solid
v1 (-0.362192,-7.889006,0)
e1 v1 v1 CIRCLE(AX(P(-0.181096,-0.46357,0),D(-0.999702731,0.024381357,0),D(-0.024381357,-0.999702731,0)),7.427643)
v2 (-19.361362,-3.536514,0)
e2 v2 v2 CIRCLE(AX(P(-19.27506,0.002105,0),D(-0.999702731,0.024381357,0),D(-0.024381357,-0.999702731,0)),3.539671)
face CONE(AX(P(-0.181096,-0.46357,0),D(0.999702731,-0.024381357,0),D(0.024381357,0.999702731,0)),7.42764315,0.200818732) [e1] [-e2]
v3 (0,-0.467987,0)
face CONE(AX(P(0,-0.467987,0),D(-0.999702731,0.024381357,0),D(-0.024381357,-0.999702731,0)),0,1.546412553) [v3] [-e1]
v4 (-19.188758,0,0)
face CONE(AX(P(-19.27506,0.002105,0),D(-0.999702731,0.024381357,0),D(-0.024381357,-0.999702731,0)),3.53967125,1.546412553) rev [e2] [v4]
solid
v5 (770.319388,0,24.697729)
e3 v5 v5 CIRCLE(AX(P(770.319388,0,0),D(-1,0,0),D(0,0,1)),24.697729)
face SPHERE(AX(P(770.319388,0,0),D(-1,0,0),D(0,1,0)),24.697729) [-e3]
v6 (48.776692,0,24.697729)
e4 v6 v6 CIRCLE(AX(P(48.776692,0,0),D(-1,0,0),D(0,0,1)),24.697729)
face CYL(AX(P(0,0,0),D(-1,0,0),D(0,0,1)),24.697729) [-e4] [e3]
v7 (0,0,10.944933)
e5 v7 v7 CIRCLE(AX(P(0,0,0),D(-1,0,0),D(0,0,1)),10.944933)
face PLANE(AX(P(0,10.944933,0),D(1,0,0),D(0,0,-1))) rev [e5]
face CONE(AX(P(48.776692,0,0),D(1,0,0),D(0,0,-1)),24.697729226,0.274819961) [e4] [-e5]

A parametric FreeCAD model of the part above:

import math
import FreeCAD as App
import Part
import Sketcher

V = App.Vector
Q = App.Units.Quantity


def add_polygon(sketch, points):
    """Adds a closed chain of lines whose ends are joined by coincident constraints."""
    first, n = sketch.GeometryCount, len(points)
    for a, b in zip(points, points[1:] + points[:1]):
        sketch.addGeometry(Part.LineSegment(App.Vector(*a, 0), App.Vector(*b, 0)), False)
    for i in range(n):
        sketch.addConstraint(Sketcher.Constraint("Coincident", first + i, 2, first + (i + 1) % n, 1))

doc = App.newDocument("Part")
body = doc.addObject("PartDesign::Body", "Body")

sketch1 = body.newObject("Sketcher::SketchObject", "Sketch")
sketch1.AttachmentSupport = (doc.getObject("XY_Plane"), [""])
sketch1.MapMode = "FlatFace"
add_polygon(sketch1, [(0, 0), (112, 0), (112, 25), (49, 25), (0, 11)])
sketch1.addConstraint([
    Sketcher.Constraint("Horizontal", 0),
    Sketcher.Constraint("Vertical", 1),
    Sketcher.Constraint("Horizontal", 2),
    Sketcher.Constraint("Vertical", 4),
    Sketcher.Constraint("Coincident", 4, 2, -1, 1),
    Sketcher.Constraint("DistanceX", 0, 1, 0, 2, Q("111.81034 mm")),
    Sketcher.Constraint("DistanceY", 1, 1, 1, 2, Q("24.697729 mm")),
    Sketcher.Constraint("Distance", 3, Q("50.678448 mm")),
    Sketcher.Constraint("DistanceX", 2, 2, 2, 1, Q("63.033648 mm")),
])
revolution = body.newObject("PartDesign::Revolution", "Revolution")
revolution.Profile = sketch1
revolution.ReferenceAxis = (sketch1, ["H_Axis"])
revolution.Angle = 360

sketch2 = body.newObject("Sketcher::SketchObject", "Sketch001")
sketch2.AttachmentSupport = (doc.getObject("XY_Plane"), [""])
sketch2.MapMode = "FlatFace"
add_polygon(sketch2, [(112, 25), (112, 0), (770, 0), (770, 25)])
sketch2.addConstraint([
    Sketcher.Constraint("Vertical", 0),
    Sketcher.Constraint("Horizontal", 1),
    Sketcher.Constraint("Vertical", 2),
    Sketcher.Constraint("Horizontal", 3),
    Sketcher.Constraint("PointOnObject", 0, 2, -1),
    Sketcher.Constraint("DistanceX", 1, 1, 1, 2, Q("658.509049 mm")),
    Sketcher.Constraint("DistanceY", 0, 2, 0, 1, Q("24.697729 mm")),
    Sketcher.Constraint("DistanceX", -1, 1, 0, 2, Q("111.81034 mm")),
])
revolution2 = body.newObject("PartDesign::Revolution", "Revolution001")
revolution2.Profile = sketch2
revolution2.ReferenceAxis = (sketch2, ["H_Axis"])
revolution2.Angle = 360

sketch3 = body.newObject("Sketcher::SketchObject", "Sketch002")
sketch3.AttachmentSupport = (doc.getObject("XY_Plane"), [""])
sketch3.MapMode = "FlatFace"
sketch3.addGeometry([
    Part.LineSegment(V(770, 0, 0), V(795, 0, 0)),
    Part.ArcOfCircle(Part.Circle(V(770, 0, 0), V(0, 0, 1), 25), math.radians(0), math.radians(90)),
    Part.LineSegment(V(770, 25, 0), V(770, 0, 0)),
], False)
sketch3.addConstraint([
    Sketcher.Constraint("Coincident", 0, 2, 1, 1),
    Sketcher.Constraint("Coincident", 1, 2, 2, 1),
    Sketcher.Constraint("Coincident", 2, 2, 0, 1),
    Sketcher.Constraint("Horizontal", 0),
    Sketcher.Constraint("Vertical", 2),
    Sketcher.Constraint("Coincident", 2, 2, 1, 3),
    Sketcher.Constraint("PointOnObject", 1, 3, -1),
    Sketcher.Constraint("Radius", 1, Q("24.697729 mm")),
    Sketcher.Constraint("DistanceX", -1, 1, 1, 3, Q("770.319388 mm")),
])
revolution3 = body.newObject("PartDesign::Revolution", "Revolution002")
revolution3.Profile = sketch3
revolution3.ReferenceAxis = (sketch3, ["H_Axis"])
revolution3.Angle = 360
body2 = doc.addObject("PartDesign::Body", "Body001")

sketch4 = body2.newObject("Sketcher::SketchObject", "Sketch003")
sketch4.AttachmentSupport = (doc.getObject("XY_Plane001"), [""])
sketch4.MapMode = "FlatFace"
add_polygon(sketch4, [(0, -0.5), (0, 7), (-19.2, 3.5), (-19.2, 0)])
sketch4.addGeometry(Part.LineSegment(V(-19.3, 0, 0), V(0, -0.5, 0)), True)
sketch4.addConstraint([
    Sketcher.Constraint("Vertical", 0),
    Sketcher.Constraint("Vertical", 2),
    Sketcher.Constraint("Coincident", 4, 2, 3, 2),
    Sketcher.Constraint("PointOnObject", 0, 2, -2),
    Sketcher.Constraint("PointOnObject", 2, 2, -1),
    Sketcher.Constraint("Parallel", 3, 4),
    Sketcher.Constraint("DistanceY", 0, 1, 0, 2, Q("7.429852 mm")),
    Sketcher.Constraint("DistanceX", 4, 1, 2, 2, Q("0.086302 mm")),
    Sketcher.Constraint("Distance", 1, Q("19.491348 mm")),
    Sketcher.Constraint("DistanceY", 2, 2, 2, 1, Q("3.540724 mm")),
    Sketcher.Constraint("DistanceX", 1, 2, -1, 1, Q("19.188758 mm")),
])
revolution4 = body2.newObject("PartDesign::Revolution", "Revolution003")
revolution4.Profile = sketch4
revolution4.ReferenceAxis = (sketch4, ["Axis0"])
revolution4.Angle = 360

doc.recompute()
